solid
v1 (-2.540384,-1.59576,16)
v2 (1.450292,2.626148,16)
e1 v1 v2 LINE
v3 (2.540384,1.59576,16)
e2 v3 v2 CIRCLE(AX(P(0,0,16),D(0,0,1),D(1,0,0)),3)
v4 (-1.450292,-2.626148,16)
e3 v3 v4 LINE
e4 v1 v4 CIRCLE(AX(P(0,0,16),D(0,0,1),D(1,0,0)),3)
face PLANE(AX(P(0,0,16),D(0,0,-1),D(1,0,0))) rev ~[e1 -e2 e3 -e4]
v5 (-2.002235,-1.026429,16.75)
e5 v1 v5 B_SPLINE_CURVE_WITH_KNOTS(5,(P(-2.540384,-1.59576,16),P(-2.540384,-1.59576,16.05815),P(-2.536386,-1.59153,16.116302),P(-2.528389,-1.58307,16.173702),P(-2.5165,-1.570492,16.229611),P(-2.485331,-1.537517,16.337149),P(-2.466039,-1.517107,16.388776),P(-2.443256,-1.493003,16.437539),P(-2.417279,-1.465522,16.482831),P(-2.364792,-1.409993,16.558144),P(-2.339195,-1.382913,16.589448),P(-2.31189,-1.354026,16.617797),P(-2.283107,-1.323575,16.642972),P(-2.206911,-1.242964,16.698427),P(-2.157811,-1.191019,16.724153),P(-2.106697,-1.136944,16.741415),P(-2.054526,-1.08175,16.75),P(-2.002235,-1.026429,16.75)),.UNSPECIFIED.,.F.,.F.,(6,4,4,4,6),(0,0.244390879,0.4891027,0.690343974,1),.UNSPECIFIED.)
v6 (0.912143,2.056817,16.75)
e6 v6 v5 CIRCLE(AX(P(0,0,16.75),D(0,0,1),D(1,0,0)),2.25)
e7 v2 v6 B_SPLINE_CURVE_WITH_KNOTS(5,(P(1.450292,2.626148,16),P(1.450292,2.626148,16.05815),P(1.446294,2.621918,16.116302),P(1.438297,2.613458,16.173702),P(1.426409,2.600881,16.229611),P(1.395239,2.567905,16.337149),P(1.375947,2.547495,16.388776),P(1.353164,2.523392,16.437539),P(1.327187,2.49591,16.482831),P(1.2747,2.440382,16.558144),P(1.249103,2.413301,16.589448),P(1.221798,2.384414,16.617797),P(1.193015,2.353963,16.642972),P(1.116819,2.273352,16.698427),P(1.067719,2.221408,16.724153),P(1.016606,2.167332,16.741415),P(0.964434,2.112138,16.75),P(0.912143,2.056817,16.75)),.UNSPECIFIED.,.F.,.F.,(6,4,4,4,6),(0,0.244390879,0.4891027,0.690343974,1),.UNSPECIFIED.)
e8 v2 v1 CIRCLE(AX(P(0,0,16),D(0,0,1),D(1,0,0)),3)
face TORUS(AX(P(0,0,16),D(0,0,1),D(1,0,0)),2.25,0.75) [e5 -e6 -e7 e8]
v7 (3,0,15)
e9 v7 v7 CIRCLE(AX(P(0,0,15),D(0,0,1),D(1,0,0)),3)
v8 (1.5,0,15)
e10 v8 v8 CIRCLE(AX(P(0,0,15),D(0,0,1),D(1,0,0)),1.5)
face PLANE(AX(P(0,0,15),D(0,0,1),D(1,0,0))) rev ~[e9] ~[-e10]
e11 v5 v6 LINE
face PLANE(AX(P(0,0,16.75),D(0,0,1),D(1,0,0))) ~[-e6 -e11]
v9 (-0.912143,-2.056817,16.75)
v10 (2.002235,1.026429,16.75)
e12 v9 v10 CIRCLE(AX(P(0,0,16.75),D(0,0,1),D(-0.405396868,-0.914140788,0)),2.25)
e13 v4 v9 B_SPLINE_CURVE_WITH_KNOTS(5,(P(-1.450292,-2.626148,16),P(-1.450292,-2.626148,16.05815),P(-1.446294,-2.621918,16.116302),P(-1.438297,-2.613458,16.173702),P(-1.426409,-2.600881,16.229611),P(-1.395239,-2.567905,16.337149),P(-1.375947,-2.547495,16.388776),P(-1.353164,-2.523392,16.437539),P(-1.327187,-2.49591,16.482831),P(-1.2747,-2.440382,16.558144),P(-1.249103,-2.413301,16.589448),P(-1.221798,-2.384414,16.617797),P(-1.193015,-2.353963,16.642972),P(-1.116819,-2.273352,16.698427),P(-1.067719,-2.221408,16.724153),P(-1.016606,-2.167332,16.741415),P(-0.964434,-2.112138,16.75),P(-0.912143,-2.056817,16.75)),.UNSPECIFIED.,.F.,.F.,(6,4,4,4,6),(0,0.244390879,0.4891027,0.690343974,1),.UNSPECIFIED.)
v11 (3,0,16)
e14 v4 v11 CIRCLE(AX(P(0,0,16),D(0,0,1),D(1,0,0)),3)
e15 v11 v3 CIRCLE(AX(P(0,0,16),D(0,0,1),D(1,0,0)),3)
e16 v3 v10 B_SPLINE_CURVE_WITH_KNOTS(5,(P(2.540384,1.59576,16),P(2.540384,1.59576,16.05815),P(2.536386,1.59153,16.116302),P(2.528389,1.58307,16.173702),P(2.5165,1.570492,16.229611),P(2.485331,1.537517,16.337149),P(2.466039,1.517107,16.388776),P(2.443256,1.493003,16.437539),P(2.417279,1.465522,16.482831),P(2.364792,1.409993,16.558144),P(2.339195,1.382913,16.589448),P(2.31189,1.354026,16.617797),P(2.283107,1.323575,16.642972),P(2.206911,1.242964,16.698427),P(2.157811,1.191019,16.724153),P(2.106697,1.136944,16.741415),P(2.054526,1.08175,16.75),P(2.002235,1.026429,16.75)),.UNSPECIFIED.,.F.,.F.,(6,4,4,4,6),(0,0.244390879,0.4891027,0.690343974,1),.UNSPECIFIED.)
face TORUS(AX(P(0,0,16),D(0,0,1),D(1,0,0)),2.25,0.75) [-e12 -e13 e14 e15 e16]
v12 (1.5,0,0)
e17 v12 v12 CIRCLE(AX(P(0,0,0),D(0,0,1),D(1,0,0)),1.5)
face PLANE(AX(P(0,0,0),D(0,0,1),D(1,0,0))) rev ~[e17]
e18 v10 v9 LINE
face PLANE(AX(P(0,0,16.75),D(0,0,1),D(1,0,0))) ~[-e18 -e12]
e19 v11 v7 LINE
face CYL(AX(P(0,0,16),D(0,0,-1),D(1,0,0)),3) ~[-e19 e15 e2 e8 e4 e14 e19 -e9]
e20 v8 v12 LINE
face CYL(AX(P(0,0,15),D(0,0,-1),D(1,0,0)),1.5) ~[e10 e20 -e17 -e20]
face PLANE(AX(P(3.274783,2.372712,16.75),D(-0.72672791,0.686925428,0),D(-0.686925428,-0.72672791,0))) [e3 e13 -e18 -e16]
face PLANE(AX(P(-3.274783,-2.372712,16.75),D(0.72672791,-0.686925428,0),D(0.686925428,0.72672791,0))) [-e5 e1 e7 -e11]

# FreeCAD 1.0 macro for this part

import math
import FreeCAD as App
import Part
import Sketcher
from FreeCAD import Vector
Q = App.Units.Quantity

doc = App.newDocument("Part")
body = doc.addObject("PartDesign::Body", "Body")

sketch1 = doc.addObject("Sketcher::SketchObject", "Sketch")
body.addObject(sketch1)
sketch1.AttachmentSupport = (doc.XZ_Plane, [""])
sketch1.MapMode = "FlatFace"
sketch1.addGeometry([
    Part.LineSegment(Vector(0, 16.8, 0), Vector(0, 0, 0)),
    Part.LineSegment(Vector(0, 0, 0), Vector(1.5, 0, 0)),
    Part.LineSegment(Vector(1.5, 0, 0), Vector(1.5, 15, 0)),
    Part.LineSegment(Vector(1.5, 15, 0), Vector(3, 15, 0)),
    Part.LineSegment(Vector(3, 15, 0), Vector(3, 16, 0)),
    Part.ArcOfCircle(Part.Circle(Vector(2.2, 16, 0), Vector(0, 0, 1), 0.8), math.radians(0), math.radians(90)),
    Part.LineSegment(Vector(2.2, 16.8, 0), Vector(0, 16.8, 0)),
], False)
sketch1.addConstraint([
    Sketcher.Constraint("Coincident", 0, 2, 1, 1),
    Sketcher.Constraint("Coincident", 1, 2, 2, 1),
    Sketcher.Constraint("Coincident", 2, 2, 3, 1),
    Sketcher.Constraint("Coincident", 3, 2, 4, 1),
    Sketcher.Constraint("Tangent", 4, 2, 5, 1),
    Sketcher.Constraint("Tangent", 5, 2, 6, 1),
    Sketcher.Constraint("Coincident", 6, 2, 0, 1),
    Sketcher.Constraint("Vertical", 0),
    Sketcher.Constraint("Horizontal", 1),
    Sketcher.Constraint("Vertical", 2),
    Sketcher.Constraint("Horizontal", 3),
    Sketcher.Constraint("Vertical", 4),
    Sketcher.Constraint("Horizontal", 6),
    Sketcher.Constraint("Coincident", 0, 2, -1, 1),
    Sketcher.Constraint("Equal", 1, 3),
    Sketcher.Constraint("DistanceY", 2, 1, 2, 2, Q("15 mm")),
    Sketcher.Constraint("DistanceY", 4, 1, 4, 2, Q("1 mm")),
    Sketcher.Constraint("Radius", 5, Q("0.75 mm")),
    Sketcher.Constraint("DistanceX", 1, 1, 1, 2, Q("1.5 mm")),
])
revolution = doc.addObject("PartDesign::Revolution", "Revolution")
body.addObject(revolution)
revolution.Profile = sketch1
revolution.ReferenceAxis = (sketch1, ["V_Axis"])
revolution.Angle = 360

sketch2 = doc.addObject("Sketcher::SketchObject", "Sketch001")
body.addObject(sketch2)
sketch2.AttachmentSupport = (doc.XY_Plane, [""])
sketch2.MapMode = "FlatFace"
sketch2.AttachmentOffset = App.Placement(Vector(0, 0, 16.75), App.Rotation())
sketch2.addGeometry([
    Part.LineSegment(Vector(-2.2, -3.4, 0), Vector(3.3, 2.4, 0)),
    Part.LineSegment(Vector(3.3, 2.4, 0), Vector(2.2, 3.4, 0)),
    Part.LineSegment(Vector(2.2, 3.4, 0), Vector(-3.3, -2.4, 0)),
    Part.LineSegment(Vector(-3.3, -2.4, 0), Vector(-2.2, -3.4, 0)),
], False)
sketch2.addConstraint([
    Sketcher.Constraint("Coincident", 0, 2, 1, 1),
    Sketcher.Constraint("Coincident", 1, 2, 2, 1),
    Sketcher.Constraint("Coincident", 2, 2, 3, 1),
    Sketcher.Constraint("Coincident", 3, 2, 0, 1),
    Sketcher.Constraint("Symmetric", 0, 2, 2, 2, -1, 1),
    Sketcher.Constraint("Symmetric", 1, 2, 3, 2, -1, 1),
    Sketcher.Constraint("Perpendicular", 0, 1),
    Sketcher.Constraint("Distance", 1, Q("1.5 mm")),
    Sketcher.Constraint("DistanceY", -1, 1, 1, 2, Q("3.4031 mm")),
    Sketcher.Constraint("DistanceY", -1, 1, 0, 2, Q("2.372712 mm")),
])
pocket1 = doc.addObject("PartDesign::Pocket", "Pocket")
body.addObject(pocket1)
pocket1.Profile = sketch2
pocket1.Length = 0.75

doc.recompute()
